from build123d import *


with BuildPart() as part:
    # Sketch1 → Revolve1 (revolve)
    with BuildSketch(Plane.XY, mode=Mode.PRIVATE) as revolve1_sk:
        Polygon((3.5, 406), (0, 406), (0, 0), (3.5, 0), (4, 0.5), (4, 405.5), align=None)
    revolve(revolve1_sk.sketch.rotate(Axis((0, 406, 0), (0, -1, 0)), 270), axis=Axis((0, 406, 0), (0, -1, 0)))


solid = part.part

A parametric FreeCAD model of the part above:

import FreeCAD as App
import Part
import Sketcher
from FreeCAD import Vector
Q = App.Units.Quantity

doc = App.newDocument("Part")
body = doc.addObject("PartDesign::Body", "Body")

# Sketch on XY plane
sketch1 = body.newObject("Sketcher::SketchObject", "Sketch")
sketch1.AttachmentSupport = (doc.getObject("XY_Plane"), [""])
sketch1.MapMode = "FlatFace"
sketch1.addGeometry([
    Part.LineSegment(Vector(3.5, 406, 0), Vector(0, 406, 0)),  # 0
    Part.LineSegment(Vector(0, 406, 0), Vector(0, 0, 0)),  # 1
    Part.LineSegment(Vector(0, 0, 0), Vector(3.5, 0, 0)),  # 2
    Part.LineSegment(Vector(3.5, 0, 0), Vector(4, 0.5, 0)),  # 3
    Part.LineSegment(Vector(4, 0.5, 0), Vector(4, 405.5, 0)),  # 4
    Part.LineSegment(Vector(4, 405.5, 0), Vector(3.5, 406, 0)),  # 5
], False)
sketch1.addConstraint([
    Sketcher.Constraint("Coincident", 0, 2, 1, 1),
    Sketcher.Constraint("Coincident", 1, 2, 2, 1),
    Sketcher.Constraint("Coincident", 2, 2, 3, 1),
    Sketcher.Constraint("Coincident", 3, 2, 4, 1),
    Sketcher.Constraint("Coincident", 4, 2, 5, 1),
    Sketcher.Constraint("Coincident", 5, 2, 0, 1),
    Sketcher.Constraint("Horizontal", 0),
    Sketcher.Constraint("Vertical", 1),
    Sketcher.Constraint("Horizontal", 2),
    Sketcher.Constraint("Vertical", 4),
    Sketcher.Constraint("Coincident", 1, 2, -1, 1),
    Sketcher.Constraint("Perpendicular", 3, 5),
    Sketcher.Constraint("Vertical", 2, 2, 5, 2),
    Sketcher.Constraint("Equal", 3, 5),
    Sketcher.Constraint("DistanceY", 1, 2, 1, 1, Q("406 mm")),
    Sketcher.Constraint("DistanceY", 4, 1, 4, 2, Q("405 mm")),
    Sketcher.Constraint("DistanceX", 0, 2, 0, 1, Q("3.5 mm")),
])
revolution = body.newObject("PartDesign::Revolution", "Revolution")
revolution.Profile = sketch1
revolution.ReferenceAxis = (sketch1, ["V_Axis"])
revolution.Angle = 360

doc.recompute()
